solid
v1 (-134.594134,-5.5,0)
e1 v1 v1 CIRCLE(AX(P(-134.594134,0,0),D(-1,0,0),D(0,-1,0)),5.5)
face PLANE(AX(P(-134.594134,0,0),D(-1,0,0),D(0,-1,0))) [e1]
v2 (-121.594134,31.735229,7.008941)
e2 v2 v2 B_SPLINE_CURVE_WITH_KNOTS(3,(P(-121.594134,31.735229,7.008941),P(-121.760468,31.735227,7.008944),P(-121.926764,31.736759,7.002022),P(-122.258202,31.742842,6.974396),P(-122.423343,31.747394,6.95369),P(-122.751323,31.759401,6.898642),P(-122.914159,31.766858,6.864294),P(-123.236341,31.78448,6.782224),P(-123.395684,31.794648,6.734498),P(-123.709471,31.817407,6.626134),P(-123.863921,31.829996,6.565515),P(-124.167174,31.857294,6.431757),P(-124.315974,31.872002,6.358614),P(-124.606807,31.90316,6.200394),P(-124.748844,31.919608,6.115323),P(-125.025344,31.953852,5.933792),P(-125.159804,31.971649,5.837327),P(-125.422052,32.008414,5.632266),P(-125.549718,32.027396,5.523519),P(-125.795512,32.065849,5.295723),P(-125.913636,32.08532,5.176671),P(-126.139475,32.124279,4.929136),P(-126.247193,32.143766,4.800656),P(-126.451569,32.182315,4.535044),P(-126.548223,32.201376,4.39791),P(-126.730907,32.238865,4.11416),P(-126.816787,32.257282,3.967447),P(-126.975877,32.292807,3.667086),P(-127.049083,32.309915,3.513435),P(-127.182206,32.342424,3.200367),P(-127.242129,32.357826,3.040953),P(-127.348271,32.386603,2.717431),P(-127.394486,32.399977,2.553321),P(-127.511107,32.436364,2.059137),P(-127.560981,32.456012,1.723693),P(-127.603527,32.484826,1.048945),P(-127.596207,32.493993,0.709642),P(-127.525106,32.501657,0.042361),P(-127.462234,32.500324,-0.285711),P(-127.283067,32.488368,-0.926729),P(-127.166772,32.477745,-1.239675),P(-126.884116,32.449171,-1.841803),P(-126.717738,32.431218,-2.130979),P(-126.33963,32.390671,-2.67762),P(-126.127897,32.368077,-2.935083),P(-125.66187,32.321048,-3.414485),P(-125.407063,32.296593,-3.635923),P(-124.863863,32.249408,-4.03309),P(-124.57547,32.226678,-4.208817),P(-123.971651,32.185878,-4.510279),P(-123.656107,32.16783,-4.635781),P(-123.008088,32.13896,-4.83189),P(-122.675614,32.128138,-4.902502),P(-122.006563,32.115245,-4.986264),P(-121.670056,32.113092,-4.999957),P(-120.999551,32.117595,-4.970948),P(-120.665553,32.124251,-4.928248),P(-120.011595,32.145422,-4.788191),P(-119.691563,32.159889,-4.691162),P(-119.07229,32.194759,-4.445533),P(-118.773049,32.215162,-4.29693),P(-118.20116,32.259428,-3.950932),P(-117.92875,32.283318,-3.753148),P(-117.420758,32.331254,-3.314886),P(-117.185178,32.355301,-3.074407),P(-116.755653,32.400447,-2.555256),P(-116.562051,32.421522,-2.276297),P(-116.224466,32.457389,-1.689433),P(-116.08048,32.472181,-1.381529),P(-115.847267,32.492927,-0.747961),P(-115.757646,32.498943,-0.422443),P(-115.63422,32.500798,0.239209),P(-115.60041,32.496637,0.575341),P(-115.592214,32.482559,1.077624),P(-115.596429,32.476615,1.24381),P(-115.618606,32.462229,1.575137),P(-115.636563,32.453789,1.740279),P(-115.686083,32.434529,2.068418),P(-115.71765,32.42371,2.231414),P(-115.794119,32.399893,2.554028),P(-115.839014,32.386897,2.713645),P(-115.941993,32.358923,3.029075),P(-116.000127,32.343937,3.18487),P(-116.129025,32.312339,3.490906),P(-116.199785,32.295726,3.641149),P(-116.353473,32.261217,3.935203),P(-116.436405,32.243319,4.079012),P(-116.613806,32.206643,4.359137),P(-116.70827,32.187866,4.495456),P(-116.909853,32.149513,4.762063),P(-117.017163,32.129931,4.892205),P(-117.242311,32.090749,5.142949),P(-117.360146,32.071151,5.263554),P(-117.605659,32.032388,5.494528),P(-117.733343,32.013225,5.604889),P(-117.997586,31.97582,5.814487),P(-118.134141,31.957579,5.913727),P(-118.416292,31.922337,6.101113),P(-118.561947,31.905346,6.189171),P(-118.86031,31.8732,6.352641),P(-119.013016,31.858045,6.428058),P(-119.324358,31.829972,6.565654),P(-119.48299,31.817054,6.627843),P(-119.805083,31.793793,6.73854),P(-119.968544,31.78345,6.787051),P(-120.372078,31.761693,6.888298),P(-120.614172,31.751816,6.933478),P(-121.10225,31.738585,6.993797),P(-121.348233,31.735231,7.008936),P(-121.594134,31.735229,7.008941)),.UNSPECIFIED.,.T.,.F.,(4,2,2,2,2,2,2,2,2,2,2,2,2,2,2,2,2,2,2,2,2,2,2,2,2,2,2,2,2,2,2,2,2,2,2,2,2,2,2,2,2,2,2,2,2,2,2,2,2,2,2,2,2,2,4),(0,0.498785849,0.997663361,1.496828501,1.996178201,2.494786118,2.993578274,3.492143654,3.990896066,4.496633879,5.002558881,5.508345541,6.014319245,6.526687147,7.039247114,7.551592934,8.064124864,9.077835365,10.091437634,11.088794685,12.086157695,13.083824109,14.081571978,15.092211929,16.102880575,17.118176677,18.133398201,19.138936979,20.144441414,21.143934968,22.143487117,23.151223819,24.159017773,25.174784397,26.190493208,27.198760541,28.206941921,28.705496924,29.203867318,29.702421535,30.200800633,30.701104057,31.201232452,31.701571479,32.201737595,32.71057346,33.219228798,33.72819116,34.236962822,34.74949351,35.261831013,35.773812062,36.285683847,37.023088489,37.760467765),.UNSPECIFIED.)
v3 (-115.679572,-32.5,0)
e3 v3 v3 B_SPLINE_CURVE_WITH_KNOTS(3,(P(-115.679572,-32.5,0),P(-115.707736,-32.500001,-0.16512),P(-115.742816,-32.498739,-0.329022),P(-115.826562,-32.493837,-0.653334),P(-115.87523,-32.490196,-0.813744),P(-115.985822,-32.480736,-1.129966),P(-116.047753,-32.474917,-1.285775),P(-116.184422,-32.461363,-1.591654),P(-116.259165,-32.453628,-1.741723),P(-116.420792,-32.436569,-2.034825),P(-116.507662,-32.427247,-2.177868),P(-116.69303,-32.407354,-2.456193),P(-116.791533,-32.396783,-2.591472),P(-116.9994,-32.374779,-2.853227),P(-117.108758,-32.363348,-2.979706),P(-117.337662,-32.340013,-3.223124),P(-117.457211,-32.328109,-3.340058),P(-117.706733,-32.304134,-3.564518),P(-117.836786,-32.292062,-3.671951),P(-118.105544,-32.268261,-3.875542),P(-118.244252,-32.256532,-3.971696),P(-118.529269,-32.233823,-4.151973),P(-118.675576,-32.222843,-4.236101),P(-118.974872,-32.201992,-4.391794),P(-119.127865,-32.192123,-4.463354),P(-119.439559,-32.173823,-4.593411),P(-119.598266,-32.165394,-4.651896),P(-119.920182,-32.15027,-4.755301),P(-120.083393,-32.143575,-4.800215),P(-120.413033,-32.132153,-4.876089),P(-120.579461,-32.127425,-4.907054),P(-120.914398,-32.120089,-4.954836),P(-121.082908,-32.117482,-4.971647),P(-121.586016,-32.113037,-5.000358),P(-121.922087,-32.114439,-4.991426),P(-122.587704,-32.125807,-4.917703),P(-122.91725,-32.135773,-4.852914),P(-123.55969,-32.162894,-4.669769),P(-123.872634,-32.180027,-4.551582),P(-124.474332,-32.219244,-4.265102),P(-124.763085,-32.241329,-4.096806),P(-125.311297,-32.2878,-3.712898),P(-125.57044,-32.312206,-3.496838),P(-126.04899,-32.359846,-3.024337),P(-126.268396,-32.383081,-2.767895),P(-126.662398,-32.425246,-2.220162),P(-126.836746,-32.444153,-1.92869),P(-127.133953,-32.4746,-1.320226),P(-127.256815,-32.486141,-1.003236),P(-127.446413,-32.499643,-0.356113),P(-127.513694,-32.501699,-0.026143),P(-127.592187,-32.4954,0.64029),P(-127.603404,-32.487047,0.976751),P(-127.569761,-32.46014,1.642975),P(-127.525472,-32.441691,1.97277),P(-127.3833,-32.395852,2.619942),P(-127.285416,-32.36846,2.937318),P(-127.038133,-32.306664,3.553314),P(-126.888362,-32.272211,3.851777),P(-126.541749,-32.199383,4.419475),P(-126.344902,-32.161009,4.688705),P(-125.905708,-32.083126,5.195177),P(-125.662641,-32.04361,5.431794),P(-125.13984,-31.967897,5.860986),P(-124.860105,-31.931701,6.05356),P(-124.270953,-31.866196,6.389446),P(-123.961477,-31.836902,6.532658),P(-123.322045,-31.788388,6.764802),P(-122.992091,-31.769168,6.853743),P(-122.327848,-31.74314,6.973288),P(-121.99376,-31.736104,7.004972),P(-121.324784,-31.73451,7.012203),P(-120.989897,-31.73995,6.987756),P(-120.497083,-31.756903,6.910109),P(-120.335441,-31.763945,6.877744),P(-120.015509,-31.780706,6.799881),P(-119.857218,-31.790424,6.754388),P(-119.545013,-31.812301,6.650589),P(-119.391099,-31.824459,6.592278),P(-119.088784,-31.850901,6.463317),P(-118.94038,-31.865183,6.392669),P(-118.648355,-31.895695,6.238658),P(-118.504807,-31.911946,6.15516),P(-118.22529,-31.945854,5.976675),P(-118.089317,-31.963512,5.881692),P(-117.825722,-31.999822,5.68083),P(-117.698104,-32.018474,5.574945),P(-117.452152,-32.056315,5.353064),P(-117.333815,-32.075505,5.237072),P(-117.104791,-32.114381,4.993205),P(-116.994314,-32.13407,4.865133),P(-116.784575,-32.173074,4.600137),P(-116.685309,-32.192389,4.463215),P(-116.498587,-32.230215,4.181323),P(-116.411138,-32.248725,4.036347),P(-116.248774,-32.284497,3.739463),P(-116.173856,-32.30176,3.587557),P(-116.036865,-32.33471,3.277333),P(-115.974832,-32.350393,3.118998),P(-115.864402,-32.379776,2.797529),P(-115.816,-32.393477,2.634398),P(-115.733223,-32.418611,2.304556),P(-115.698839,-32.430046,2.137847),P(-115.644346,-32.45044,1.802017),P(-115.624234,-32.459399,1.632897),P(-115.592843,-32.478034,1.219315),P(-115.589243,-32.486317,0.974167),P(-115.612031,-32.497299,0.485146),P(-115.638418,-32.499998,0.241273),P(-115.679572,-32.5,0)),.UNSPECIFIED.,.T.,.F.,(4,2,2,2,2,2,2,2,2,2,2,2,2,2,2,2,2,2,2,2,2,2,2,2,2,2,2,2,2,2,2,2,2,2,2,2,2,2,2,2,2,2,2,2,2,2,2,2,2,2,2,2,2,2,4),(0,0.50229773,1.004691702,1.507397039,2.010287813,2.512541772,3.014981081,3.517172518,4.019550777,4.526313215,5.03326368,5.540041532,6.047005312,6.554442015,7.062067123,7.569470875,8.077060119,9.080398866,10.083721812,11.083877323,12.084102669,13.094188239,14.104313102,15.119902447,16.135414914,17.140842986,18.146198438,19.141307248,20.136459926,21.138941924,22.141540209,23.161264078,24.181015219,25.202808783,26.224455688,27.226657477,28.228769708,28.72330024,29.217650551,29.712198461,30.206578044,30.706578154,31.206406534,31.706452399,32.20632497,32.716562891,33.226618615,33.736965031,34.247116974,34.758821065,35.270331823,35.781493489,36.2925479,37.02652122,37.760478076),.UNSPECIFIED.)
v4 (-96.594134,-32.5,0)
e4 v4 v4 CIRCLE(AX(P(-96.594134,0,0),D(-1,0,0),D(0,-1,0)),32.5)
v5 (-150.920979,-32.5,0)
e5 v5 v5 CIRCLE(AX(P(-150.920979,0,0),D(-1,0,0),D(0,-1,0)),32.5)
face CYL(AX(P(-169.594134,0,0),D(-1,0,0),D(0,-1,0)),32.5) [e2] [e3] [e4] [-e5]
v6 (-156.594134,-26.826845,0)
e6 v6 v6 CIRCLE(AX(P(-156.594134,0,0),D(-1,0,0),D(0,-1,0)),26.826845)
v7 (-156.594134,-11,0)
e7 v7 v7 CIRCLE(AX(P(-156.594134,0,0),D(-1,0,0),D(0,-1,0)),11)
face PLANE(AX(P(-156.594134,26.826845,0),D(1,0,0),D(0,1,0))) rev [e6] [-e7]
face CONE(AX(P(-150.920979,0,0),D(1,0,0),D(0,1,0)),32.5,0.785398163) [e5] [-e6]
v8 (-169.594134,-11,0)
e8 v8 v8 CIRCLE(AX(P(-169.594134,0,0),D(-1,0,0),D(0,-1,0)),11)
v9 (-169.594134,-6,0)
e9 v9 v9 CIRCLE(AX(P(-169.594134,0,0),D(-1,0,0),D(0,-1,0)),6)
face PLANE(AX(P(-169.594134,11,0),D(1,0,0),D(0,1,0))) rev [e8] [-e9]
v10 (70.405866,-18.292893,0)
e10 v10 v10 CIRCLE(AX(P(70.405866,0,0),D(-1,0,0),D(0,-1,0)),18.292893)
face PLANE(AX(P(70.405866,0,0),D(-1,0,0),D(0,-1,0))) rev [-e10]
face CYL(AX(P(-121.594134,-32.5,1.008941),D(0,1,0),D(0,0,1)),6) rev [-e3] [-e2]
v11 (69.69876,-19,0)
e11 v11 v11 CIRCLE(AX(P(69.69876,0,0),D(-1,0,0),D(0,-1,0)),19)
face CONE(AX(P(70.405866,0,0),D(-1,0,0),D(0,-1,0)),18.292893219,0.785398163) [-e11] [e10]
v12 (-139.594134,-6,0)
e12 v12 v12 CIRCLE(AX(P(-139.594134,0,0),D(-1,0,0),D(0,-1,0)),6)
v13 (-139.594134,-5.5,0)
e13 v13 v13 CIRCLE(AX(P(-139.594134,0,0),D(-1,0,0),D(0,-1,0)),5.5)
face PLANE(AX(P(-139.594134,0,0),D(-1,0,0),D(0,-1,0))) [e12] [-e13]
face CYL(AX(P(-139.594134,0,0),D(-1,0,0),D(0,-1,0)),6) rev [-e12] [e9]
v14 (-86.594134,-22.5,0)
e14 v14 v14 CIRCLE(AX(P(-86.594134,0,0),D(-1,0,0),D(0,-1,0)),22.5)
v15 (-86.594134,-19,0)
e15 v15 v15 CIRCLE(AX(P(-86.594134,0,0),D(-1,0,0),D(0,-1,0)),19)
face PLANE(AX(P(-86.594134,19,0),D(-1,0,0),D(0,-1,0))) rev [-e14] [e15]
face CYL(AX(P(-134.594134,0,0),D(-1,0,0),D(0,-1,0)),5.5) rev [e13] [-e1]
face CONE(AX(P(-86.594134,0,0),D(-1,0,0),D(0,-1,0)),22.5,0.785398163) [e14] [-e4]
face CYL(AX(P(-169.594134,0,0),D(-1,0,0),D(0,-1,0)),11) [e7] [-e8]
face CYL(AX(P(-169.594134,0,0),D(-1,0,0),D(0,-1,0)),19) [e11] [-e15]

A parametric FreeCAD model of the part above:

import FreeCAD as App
import Part
import Sketcher

V = App.Vector
Q = App.Units.Quantity


def add_polygon(sketch, points):
    """Adds a closed chain of lines whose ends are joined by coincident constraints."""
    first, n = sketch.GeometryCount, len(points)
    for a, b in zip(points, points[1:] + points[:1]):
        sketch.addGeometry(Part.LineSegment(App.Vector(*a, 0), App.Vector(*b, 0)), False)
    for i in range(n):
        sketch.addConstraint(Sketcher.Constraint("Coincident", first + i, 2, first + (i + 1) % n, 1))

doc = App.newDocument("Part")
body = doc.addObject("PartDesign::Body", "Body")

# Sketch on XY plane
sketch1 = doc.addObject("Sketcher::SketchObject", "Sketch")
body.addObject(sketch1)
sketch1.AttachmentSupport = (doc.XY_Plane, [""])
sketch1.MapMode = "FlatFace"
add_polygon(sketch1, [(70.4, 0), (70.4, 18.3), (69.7, 19), (-86.6, 19), (-86.6, 22.5), (-96.6, 32.5), (-150.9, 32.5), (-156.6, 26.8), (-156.6, 11), (-169.6, 11), (-169.6, 0)])  # lines 0-10
sketch1.addConstraint([
    Sketcher.Constraint("Vertical", 0),
    Sketcher.Constraint("Horizontal", 2),
    Sketcher.Constraint("Vertical", 3),
    Sketcher.Constraint("Horizontal", 5),
    Sketcher.Constraint("Vertical", 7),
    Sketcher.Constraint("Horizontal", 8),
    Sketcher.Constraint("Vertical", 9),
    Sketcher.Constraint("Horizontal", 10),
    Sketcher.Constraint("PointOnObject", 9, 2, -1),
    Sketcher.Constraint("Parallel", 1, 4),
    Sketcher.Constraint("Perpendicular", 4, 6),
    Sketcher.Constraint("DistanceX", 8, 2, 8, 1, 13.0),
    Sketcher.Constraint("DistanceX", 10, 1, 10, 2, 240.0),
    Sketcher.Constraint("DistanceY", 9, 2, 9, 1, 11.0),
    Sketcher.Constraint("Angle", 1, Q("135 deg")),
    Sketcher.Constraint("Distance", 1, 1.0),
    Sketcher.Constraint("DistanceY", 3, 1, 3, 2, 3.5),
    Sketcher.Constraint("DistanceY", -1, 1, 1, 2, 19.0),
    Sketcher.Constraint("DistanceX", 2, 2, 0, 2, 157.0),
    Sketcher.Constraint("DistanceX", 4, 2, 3, 2, 10.0),
    Sketcher.Constraint("DistanceX", 5, 2, 5, 1, 54.326845),
    Sketcher.Constraint("DistanceX", -1, 1, 1, 2, 69.69876),
])
revolution = doc.addObject("PartDesign::Revolution", "Revolution")
body.addObject(revolution)
revolution.Profile = sketch1
revolution.ReferenceAxis = (sketch1, ["H_Axis"])
revolution.Angle = 360

# Sketch on XZ plane
sketch2 = doc.addObject("Sketcher::SketchObject", "Sketch001")
body.addObject(sketch2)
sketch2.AttachmentSupport = (doc.XZ_Plane, [""])
sketch2.MapMode = "FlatFace"
sketch2.addGeometry(Part.Circle(V(-122, 1, 0), V(0, 0, 1), 6), False)
sketch2.addConstraint([
    Sketcher.Constraint("Diameter", 0, 12.0),
    Sketcher.Constraint("DistanceY", -1, 1, 0, 3, 1.008941),
    Sketcher.Constraint("DistanceX", 0, 3, -1, 1, 121.594134),
])
pocket1 = doc.addObject("PartDesign::Pocket", "Pocket")
body.addObject(pocket1)
pocket1.Profile = sketch2
pocket1.Type = "ThroughAll"
pocket1.Midplane = True

# Sketch on YZ plane
sketch3 = doc.addObject("Sketcher::SketchObject", "Sketch002")
body.addObject(sketch3)
sketch3.AttachmentSupport = (doc.YZ_Plane, [""])
sketch3.MapMode = "FlatFace"
sketch3.AttachmentOffset = App.Placement(V(0, 0, -169.594134), App.Rotation())
sketch3.addGeometry(Part.Circle(V(0, 0, 0), V(0, 0, 1), 6), False)
sketch3.addConstraint([
    Sketcher.Constraint("Coincident", 0, 3, -1, 1),
    Sketcher.Constraint("Diameter", 0, 12.0),
])
pocket2 = doc.addObject("PartDesign::Pocket", "Pocket001")
body.addObject(pocket2)
pocket2.Profile = sketch3
pocket2.Length = 30
pocket2.Reversed = True

# Sketch on YZ plane
sketch4 = doc.addObject("Sketcher::SketchObject", "Sketch003")
body.addObject(sketch4)
sketch4.AttachmentSupport = (doc.YZ_Plane, [""])
sketch4.MapMode = "FlatFace"
sketch4.AttachmentOffset = App.Placement(V(0, 0, -139.594134), App.Rotation())
sketch4.addGeometry(Part.Circle(V(0, 0, 0), V(0, 0, 1), 6), False)
sketch4.addConstraint([
    Sketcher.Constraint("Coincident", 0, 3, -1, 1),
    Sketcher.Constraint("Diameter", 0, 11.0),
])
pocket3 = doc.addObject("PartDesign::Pocket", "Pocket002")
body.addObject(pocket3)
pocket3.Profile = sketch4
pocket3.Length = 5
pocket3.Reversed = True

doc.recompute()
